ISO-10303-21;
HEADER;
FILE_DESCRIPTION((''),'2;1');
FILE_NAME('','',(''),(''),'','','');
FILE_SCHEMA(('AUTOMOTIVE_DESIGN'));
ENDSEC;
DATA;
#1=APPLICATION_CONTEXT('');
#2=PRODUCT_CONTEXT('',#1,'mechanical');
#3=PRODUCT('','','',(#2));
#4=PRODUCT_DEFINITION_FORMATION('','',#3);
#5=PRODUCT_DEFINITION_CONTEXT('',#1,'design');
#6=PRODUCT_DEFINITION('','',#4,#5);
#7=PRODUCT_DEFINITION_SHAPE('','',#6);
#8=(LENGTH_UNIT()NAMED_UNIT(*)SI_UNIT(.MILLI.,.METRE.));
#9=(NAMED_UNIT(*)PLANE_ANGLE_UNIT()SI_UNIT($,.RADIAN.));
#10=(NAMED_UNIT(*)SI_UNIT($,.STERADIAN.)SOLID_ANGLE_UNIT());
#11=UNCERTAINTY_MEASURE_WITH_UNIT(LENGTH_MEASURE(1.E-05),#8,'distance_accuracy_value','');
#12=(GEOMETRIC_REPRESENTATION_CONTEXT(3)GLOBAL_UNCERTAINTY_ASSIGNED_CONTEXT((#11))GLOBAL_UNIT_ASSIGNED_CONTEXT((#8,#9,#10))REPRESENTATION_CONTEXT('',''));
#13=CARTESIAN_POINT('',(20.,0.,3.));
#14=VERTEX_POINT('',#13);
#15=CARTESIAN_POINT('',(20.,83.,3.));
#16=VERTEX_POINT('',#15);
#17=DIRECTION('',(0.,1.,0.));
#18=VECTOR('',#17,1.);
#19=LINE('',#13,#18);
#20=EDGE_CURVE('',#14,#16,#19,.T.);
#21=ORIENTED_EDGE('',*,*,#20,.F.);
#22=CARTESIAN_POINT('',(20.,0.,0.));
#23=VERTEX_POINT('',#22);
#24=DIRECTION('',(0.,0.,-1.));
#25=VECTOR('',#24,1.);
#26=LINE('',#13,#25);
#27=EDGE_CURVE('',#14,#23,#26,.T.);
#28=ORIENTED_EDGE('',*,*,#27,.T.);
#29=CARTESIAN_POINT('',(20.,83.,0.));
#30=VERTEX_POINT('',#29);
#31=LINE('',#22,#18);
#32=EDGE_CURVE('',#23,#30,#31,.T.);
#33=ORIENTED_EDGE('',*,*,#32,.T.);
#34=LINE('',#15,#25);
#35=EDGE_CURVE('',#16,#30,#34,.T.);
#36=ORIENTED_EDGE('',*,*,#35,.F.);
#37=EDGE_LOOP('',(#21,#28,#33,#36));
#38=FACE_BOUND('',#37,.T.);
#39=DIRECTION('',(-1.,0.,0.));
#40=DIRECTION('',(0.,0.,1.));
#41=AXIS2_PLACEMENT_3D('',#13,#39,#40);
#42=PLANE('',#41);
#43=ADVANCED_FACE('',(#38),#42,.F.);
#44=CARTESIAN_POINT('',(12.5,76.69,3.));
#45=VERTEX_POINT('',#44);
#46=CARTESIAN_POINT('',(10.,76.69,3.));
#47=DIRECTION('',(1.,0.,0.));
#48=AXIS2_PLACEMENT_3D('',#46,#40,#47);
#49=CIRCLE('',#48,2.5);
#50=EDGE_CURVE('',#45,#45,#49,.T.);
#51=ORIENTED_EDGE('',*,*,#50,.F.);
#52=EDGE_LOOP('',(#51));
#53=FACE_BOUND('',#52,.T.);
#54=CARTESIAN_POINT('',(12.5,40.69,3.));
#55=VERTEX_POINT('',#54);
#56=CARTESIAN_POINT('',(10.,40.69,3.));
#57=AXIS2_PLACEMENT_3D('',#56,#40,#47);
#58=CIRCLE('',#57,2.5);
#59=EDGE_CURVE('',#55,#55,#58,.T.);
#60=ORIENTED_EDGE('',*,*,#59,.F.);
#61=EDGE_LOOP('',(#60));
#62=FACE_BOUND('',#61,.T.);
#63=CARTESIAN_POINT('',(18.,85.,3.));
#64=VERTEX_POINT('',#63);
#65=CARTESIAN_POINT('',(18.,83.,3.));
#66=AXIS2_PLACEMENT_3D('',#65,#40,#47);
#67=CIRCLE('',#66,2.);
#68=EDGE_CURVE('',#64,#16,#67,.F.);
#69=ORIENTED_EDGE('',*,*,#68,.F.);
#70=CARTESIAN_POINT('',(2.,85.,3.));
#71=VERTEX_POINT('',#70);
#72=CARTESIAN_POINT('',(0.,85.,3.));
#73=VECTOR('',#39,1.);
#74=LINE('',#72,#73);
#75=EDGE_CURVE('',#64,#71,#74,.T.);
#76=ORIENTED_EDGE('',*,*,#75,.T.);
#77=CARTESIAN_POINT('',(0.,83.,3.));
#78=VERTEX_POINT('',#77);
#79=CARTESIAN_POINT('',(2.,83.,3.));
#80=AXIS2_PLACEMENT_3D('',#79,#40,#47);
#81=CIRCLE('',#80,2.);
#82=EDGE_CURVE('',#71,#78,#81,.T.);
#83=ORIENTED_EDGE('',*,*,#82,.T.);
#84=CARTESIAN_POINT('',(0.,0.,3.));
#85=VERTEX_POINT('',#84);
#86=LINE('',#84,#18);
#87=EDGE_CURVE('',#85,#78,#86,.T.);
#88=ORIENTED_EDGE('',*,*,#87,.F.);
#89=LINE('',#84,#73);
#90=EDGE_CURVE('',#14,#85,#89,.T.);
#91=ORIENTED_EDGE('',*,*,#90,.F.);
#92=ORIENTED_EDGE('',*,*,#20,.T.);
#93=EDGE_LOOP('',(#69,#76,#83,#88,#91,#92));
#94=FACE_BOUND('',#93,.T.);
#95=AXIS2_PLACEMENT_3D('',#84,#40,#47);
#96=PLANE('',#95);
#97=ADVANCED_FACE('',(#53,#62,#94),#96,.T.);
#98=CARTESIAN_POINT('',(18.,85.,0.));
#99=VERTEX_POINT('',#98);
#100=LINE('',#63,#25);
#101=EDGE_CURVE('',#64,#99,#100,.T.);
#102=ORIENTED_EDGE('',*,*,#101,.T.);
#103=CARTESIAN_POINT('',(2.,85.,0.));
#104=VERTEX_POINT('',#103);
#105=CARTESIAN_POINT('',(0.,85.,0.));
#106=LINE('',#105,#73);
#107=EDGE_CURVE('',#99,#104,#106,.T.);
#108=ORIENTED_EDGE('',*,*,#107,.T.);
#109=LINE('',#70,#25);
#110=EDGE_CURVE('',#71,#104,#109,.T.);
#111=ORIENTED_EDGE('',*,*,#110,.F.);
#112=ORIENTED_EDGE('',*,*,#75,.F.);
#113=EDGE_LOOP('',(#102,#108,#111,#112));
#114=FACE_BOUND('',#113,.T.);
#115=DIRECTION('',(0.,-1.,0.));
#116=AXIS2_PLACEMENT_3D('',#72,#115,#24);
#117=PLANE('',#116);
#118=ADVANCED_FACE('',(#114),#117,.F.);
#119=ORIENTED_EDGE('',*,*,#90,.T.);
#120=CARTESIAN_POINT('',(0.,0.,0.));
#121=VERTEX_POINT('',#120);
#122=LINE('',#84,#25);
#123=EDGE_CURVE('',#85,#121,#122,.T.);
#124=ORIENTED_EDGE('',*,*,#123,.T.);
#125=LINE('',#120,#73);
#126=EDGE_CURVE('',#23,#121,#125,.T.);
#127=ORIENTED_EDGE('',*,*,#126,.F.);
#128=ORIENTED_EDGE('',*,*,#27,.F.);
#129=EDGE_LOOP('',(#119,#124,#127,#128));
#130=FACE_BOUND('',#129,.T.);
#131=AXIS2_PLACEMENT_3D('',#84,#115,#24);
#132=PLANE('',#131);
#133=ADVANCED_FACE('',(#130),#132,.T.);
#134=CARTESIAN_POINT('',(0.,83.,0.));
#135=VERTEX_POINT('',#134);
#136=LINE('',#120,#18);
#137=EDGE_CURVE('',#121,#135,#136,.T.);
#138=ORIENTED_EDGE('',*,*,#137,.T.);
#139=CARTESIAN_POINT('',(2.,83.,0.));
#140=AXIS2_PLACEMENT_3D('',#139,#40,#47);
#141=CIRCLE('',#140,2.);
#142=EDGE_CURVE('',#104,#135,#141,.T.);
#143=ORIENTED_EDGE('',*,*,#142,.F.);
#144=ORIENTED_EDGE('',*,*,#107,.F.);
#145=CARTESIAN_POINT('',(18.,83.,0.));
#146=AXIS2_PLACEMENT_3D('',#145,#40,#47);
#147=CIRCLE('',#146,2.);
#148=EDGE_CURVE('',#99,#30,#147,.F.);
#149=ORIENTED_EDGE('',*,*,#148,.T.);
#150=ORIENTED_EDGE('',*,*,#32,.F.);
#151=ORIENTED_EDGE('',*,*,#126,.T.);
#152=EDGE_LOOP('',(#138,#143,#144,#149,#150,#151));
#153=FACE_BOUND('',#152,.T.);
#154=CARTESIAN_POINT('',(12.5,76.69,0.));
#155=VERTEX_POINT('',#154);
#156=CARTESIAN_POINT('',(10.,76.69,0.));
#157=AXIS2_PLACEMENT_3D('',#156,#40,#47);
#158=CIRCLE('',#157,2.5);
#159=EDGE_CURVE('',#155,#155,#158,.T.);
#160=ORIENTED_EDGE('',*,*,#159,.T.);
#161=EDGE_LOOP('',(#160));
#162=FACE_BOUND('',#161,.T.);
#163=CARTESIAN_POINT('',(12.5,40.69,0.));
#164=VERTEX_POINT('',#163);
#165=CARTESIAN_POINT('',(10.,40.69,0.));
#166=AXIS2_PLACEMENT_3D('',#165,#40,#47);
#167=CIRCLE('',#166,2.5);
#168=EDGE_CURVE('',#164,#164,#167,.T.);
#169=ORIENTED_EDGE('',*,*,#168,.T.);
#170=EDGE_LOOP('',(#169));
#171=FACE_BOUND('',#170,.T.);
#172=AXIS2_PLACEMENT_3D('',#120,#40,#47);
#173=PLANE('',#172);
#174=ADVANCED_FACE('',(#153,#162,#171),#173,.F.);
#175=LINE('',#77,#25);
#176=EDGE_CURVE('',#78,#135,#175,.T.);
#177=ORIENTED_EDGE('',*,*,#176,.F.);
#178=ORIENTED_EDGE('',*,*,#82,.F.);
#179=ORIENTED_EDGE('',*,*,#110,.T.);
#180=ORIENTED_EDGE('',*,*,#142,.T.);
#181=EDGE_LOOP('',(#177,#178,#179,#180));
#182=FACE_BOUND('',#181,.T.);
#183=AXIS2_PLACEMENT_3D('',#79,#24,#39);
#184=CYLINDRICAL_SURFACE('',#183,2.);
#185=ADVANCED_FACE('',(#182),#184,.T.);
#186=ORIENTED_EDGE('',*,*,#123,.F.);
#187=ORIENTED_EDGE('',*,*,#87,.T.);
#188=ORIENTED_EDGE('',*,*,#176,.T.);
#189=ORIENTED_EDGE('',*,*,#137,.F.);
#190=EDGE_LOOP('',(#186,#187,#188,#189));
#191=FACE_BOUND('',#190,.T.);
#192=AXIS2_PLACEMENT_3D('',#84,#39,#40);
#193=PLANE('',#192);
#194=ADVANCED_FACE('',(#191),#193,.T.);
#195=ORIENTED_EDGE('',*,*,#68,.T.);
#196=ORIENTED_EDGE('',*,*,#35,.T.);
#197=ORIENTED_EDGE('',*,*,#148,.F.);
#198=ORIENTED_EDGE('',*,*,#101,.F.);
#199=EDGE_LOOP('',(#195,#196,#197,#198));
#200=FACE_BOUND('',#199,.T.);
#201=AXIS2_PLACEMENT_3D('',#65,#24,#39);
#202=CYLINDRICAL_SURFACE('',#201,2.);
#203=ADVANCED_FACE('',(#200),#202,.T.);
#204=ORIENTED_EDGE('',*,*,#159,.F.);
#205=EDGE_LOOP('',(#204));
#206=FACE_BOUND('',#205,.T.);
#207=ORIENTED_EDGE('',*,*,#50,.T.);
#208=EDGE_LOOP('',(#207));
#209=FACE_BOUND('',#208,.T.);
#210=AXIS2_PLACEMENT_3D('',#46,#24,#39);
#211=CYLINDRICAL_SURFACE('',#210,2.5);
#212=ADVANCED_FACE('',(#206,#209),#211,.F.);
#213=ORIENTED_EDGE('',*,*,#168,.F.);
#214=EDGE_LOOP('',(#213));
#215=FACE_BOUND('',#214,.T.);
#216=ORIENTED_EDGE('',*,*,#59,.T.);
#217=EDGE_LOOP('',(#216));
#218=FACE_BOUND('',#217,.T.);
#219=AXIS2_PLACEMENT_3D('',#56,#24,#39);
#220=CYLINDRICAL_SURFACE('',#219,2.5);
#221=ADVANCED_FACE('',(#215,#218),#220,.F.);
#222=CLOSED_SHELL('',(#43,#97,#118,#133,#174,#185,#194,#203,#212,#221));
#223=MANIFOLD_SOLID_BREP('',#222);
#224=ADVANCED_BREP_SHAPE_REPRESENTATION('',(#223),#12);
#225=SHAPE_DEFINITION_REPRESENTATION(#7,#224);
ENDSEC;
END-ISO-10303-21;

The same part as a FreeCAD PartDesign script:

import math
import FreeCAD as App
import Part
import Sketcher

V = App.Vector

doc = App.newDocument("Part")
body = doc.addObject("PartDesign::Body", "Body")

# Sketch on XY plane
sketch1 = body.newObject("Sketcher::SketchObject", "Sketch")
sketch1.AttachmentSupport = (doc.getObject("XY_Plane"), [""])
sketch1.MapMode = "FlatFace"
sketch1.addGeometry([
    Part.LineSegment(V(20, 0, 0), V(20, 83, 0)),  # 0
    Part.ArcOfCircle(Part.Circle(V(18, 83, 0), V(0, 0, 1), 2), math.radians(0), math.radians(90)),  # 1
    Part.LineSegment(V(18, 85, 0), V(2, 85, 0)),  # 2
    Part.ArcOfCircle(Part.Circle(V(2, 83, 0), V(0, 0, 1), 2), math.radians(90), math.radians(180)),  # 3
    Part.LineSegment(V(0, 83, 0), V(0, 0, 0)),  # 4
    Part.LineSegment(V(0, 0, 0), V(20, 0, 0)),  # 5
    Part.Circle(V(10, 40.7, 0), V(0, 0, 1), 2.5),  # 6
    Part.Circle(V(10, 76.7, 0), V(0, 0, 1), 2.5),  # 7
], False)
sketch1.addConstraint([
    Sketcher.Constraint("Tangent", 0, 2, 1, 1),
    Sketcher.Constraint("Tangent", 1, 2, 2, 1),
    Sketcher.Constraint("Tangent", 2, 2, 3, 1),
    Sketcher.Constraint("Tangent", 3, 2, 4, 1),
    Sketcher.Constraint("Coincident", 4, 2, 5, 1),
    Sketcher.Constraint("Coincident", 5, 2, 0, 1),
    Sketcher.Constraint("Vertical", 0),
    Sketcher.Constraint("Horizontal", 2),
    Sketcher.Constraint("Vertical", 4),
    Sketcher.Constraint("Horizontal", 5),
    Sketcher.Constraint("Coincident", 4, 2, -1, 1),
    Sketcher.Constraint("Equal", 1, 3),
    Sketcher.Constraint("Equal", 6, 7),
    Sketcher.Constraint("Vertical", 6, 3, 7, 3),
    Sketcher.Constraint("Diameter", 6, 5.0),
    Sketcher.Constraint("Radius", 1, 2.0),
    Sketcher.Constraint("DistanceX", 2, 2, 2, 1, 16.0),
    Sketcher.Constraint("DistanceY", 0, 1, 0, 2, 83.0),
    Sketcher.Constraint("DistanceX", -1, 1, 6, 3, 10.0),
    Sketcher.Constraint("DistanceY", 6, 3, 7, 3, 36.0),
    Sketcher.Constraint("DistanceY", -1, 1, 6, 3, 40.69),
])
pad1 = body.newObject("PartDesign::Pad", "Pad")
pad1.Profile = sketch1
pad1.Length = 3

doc.recompute()
